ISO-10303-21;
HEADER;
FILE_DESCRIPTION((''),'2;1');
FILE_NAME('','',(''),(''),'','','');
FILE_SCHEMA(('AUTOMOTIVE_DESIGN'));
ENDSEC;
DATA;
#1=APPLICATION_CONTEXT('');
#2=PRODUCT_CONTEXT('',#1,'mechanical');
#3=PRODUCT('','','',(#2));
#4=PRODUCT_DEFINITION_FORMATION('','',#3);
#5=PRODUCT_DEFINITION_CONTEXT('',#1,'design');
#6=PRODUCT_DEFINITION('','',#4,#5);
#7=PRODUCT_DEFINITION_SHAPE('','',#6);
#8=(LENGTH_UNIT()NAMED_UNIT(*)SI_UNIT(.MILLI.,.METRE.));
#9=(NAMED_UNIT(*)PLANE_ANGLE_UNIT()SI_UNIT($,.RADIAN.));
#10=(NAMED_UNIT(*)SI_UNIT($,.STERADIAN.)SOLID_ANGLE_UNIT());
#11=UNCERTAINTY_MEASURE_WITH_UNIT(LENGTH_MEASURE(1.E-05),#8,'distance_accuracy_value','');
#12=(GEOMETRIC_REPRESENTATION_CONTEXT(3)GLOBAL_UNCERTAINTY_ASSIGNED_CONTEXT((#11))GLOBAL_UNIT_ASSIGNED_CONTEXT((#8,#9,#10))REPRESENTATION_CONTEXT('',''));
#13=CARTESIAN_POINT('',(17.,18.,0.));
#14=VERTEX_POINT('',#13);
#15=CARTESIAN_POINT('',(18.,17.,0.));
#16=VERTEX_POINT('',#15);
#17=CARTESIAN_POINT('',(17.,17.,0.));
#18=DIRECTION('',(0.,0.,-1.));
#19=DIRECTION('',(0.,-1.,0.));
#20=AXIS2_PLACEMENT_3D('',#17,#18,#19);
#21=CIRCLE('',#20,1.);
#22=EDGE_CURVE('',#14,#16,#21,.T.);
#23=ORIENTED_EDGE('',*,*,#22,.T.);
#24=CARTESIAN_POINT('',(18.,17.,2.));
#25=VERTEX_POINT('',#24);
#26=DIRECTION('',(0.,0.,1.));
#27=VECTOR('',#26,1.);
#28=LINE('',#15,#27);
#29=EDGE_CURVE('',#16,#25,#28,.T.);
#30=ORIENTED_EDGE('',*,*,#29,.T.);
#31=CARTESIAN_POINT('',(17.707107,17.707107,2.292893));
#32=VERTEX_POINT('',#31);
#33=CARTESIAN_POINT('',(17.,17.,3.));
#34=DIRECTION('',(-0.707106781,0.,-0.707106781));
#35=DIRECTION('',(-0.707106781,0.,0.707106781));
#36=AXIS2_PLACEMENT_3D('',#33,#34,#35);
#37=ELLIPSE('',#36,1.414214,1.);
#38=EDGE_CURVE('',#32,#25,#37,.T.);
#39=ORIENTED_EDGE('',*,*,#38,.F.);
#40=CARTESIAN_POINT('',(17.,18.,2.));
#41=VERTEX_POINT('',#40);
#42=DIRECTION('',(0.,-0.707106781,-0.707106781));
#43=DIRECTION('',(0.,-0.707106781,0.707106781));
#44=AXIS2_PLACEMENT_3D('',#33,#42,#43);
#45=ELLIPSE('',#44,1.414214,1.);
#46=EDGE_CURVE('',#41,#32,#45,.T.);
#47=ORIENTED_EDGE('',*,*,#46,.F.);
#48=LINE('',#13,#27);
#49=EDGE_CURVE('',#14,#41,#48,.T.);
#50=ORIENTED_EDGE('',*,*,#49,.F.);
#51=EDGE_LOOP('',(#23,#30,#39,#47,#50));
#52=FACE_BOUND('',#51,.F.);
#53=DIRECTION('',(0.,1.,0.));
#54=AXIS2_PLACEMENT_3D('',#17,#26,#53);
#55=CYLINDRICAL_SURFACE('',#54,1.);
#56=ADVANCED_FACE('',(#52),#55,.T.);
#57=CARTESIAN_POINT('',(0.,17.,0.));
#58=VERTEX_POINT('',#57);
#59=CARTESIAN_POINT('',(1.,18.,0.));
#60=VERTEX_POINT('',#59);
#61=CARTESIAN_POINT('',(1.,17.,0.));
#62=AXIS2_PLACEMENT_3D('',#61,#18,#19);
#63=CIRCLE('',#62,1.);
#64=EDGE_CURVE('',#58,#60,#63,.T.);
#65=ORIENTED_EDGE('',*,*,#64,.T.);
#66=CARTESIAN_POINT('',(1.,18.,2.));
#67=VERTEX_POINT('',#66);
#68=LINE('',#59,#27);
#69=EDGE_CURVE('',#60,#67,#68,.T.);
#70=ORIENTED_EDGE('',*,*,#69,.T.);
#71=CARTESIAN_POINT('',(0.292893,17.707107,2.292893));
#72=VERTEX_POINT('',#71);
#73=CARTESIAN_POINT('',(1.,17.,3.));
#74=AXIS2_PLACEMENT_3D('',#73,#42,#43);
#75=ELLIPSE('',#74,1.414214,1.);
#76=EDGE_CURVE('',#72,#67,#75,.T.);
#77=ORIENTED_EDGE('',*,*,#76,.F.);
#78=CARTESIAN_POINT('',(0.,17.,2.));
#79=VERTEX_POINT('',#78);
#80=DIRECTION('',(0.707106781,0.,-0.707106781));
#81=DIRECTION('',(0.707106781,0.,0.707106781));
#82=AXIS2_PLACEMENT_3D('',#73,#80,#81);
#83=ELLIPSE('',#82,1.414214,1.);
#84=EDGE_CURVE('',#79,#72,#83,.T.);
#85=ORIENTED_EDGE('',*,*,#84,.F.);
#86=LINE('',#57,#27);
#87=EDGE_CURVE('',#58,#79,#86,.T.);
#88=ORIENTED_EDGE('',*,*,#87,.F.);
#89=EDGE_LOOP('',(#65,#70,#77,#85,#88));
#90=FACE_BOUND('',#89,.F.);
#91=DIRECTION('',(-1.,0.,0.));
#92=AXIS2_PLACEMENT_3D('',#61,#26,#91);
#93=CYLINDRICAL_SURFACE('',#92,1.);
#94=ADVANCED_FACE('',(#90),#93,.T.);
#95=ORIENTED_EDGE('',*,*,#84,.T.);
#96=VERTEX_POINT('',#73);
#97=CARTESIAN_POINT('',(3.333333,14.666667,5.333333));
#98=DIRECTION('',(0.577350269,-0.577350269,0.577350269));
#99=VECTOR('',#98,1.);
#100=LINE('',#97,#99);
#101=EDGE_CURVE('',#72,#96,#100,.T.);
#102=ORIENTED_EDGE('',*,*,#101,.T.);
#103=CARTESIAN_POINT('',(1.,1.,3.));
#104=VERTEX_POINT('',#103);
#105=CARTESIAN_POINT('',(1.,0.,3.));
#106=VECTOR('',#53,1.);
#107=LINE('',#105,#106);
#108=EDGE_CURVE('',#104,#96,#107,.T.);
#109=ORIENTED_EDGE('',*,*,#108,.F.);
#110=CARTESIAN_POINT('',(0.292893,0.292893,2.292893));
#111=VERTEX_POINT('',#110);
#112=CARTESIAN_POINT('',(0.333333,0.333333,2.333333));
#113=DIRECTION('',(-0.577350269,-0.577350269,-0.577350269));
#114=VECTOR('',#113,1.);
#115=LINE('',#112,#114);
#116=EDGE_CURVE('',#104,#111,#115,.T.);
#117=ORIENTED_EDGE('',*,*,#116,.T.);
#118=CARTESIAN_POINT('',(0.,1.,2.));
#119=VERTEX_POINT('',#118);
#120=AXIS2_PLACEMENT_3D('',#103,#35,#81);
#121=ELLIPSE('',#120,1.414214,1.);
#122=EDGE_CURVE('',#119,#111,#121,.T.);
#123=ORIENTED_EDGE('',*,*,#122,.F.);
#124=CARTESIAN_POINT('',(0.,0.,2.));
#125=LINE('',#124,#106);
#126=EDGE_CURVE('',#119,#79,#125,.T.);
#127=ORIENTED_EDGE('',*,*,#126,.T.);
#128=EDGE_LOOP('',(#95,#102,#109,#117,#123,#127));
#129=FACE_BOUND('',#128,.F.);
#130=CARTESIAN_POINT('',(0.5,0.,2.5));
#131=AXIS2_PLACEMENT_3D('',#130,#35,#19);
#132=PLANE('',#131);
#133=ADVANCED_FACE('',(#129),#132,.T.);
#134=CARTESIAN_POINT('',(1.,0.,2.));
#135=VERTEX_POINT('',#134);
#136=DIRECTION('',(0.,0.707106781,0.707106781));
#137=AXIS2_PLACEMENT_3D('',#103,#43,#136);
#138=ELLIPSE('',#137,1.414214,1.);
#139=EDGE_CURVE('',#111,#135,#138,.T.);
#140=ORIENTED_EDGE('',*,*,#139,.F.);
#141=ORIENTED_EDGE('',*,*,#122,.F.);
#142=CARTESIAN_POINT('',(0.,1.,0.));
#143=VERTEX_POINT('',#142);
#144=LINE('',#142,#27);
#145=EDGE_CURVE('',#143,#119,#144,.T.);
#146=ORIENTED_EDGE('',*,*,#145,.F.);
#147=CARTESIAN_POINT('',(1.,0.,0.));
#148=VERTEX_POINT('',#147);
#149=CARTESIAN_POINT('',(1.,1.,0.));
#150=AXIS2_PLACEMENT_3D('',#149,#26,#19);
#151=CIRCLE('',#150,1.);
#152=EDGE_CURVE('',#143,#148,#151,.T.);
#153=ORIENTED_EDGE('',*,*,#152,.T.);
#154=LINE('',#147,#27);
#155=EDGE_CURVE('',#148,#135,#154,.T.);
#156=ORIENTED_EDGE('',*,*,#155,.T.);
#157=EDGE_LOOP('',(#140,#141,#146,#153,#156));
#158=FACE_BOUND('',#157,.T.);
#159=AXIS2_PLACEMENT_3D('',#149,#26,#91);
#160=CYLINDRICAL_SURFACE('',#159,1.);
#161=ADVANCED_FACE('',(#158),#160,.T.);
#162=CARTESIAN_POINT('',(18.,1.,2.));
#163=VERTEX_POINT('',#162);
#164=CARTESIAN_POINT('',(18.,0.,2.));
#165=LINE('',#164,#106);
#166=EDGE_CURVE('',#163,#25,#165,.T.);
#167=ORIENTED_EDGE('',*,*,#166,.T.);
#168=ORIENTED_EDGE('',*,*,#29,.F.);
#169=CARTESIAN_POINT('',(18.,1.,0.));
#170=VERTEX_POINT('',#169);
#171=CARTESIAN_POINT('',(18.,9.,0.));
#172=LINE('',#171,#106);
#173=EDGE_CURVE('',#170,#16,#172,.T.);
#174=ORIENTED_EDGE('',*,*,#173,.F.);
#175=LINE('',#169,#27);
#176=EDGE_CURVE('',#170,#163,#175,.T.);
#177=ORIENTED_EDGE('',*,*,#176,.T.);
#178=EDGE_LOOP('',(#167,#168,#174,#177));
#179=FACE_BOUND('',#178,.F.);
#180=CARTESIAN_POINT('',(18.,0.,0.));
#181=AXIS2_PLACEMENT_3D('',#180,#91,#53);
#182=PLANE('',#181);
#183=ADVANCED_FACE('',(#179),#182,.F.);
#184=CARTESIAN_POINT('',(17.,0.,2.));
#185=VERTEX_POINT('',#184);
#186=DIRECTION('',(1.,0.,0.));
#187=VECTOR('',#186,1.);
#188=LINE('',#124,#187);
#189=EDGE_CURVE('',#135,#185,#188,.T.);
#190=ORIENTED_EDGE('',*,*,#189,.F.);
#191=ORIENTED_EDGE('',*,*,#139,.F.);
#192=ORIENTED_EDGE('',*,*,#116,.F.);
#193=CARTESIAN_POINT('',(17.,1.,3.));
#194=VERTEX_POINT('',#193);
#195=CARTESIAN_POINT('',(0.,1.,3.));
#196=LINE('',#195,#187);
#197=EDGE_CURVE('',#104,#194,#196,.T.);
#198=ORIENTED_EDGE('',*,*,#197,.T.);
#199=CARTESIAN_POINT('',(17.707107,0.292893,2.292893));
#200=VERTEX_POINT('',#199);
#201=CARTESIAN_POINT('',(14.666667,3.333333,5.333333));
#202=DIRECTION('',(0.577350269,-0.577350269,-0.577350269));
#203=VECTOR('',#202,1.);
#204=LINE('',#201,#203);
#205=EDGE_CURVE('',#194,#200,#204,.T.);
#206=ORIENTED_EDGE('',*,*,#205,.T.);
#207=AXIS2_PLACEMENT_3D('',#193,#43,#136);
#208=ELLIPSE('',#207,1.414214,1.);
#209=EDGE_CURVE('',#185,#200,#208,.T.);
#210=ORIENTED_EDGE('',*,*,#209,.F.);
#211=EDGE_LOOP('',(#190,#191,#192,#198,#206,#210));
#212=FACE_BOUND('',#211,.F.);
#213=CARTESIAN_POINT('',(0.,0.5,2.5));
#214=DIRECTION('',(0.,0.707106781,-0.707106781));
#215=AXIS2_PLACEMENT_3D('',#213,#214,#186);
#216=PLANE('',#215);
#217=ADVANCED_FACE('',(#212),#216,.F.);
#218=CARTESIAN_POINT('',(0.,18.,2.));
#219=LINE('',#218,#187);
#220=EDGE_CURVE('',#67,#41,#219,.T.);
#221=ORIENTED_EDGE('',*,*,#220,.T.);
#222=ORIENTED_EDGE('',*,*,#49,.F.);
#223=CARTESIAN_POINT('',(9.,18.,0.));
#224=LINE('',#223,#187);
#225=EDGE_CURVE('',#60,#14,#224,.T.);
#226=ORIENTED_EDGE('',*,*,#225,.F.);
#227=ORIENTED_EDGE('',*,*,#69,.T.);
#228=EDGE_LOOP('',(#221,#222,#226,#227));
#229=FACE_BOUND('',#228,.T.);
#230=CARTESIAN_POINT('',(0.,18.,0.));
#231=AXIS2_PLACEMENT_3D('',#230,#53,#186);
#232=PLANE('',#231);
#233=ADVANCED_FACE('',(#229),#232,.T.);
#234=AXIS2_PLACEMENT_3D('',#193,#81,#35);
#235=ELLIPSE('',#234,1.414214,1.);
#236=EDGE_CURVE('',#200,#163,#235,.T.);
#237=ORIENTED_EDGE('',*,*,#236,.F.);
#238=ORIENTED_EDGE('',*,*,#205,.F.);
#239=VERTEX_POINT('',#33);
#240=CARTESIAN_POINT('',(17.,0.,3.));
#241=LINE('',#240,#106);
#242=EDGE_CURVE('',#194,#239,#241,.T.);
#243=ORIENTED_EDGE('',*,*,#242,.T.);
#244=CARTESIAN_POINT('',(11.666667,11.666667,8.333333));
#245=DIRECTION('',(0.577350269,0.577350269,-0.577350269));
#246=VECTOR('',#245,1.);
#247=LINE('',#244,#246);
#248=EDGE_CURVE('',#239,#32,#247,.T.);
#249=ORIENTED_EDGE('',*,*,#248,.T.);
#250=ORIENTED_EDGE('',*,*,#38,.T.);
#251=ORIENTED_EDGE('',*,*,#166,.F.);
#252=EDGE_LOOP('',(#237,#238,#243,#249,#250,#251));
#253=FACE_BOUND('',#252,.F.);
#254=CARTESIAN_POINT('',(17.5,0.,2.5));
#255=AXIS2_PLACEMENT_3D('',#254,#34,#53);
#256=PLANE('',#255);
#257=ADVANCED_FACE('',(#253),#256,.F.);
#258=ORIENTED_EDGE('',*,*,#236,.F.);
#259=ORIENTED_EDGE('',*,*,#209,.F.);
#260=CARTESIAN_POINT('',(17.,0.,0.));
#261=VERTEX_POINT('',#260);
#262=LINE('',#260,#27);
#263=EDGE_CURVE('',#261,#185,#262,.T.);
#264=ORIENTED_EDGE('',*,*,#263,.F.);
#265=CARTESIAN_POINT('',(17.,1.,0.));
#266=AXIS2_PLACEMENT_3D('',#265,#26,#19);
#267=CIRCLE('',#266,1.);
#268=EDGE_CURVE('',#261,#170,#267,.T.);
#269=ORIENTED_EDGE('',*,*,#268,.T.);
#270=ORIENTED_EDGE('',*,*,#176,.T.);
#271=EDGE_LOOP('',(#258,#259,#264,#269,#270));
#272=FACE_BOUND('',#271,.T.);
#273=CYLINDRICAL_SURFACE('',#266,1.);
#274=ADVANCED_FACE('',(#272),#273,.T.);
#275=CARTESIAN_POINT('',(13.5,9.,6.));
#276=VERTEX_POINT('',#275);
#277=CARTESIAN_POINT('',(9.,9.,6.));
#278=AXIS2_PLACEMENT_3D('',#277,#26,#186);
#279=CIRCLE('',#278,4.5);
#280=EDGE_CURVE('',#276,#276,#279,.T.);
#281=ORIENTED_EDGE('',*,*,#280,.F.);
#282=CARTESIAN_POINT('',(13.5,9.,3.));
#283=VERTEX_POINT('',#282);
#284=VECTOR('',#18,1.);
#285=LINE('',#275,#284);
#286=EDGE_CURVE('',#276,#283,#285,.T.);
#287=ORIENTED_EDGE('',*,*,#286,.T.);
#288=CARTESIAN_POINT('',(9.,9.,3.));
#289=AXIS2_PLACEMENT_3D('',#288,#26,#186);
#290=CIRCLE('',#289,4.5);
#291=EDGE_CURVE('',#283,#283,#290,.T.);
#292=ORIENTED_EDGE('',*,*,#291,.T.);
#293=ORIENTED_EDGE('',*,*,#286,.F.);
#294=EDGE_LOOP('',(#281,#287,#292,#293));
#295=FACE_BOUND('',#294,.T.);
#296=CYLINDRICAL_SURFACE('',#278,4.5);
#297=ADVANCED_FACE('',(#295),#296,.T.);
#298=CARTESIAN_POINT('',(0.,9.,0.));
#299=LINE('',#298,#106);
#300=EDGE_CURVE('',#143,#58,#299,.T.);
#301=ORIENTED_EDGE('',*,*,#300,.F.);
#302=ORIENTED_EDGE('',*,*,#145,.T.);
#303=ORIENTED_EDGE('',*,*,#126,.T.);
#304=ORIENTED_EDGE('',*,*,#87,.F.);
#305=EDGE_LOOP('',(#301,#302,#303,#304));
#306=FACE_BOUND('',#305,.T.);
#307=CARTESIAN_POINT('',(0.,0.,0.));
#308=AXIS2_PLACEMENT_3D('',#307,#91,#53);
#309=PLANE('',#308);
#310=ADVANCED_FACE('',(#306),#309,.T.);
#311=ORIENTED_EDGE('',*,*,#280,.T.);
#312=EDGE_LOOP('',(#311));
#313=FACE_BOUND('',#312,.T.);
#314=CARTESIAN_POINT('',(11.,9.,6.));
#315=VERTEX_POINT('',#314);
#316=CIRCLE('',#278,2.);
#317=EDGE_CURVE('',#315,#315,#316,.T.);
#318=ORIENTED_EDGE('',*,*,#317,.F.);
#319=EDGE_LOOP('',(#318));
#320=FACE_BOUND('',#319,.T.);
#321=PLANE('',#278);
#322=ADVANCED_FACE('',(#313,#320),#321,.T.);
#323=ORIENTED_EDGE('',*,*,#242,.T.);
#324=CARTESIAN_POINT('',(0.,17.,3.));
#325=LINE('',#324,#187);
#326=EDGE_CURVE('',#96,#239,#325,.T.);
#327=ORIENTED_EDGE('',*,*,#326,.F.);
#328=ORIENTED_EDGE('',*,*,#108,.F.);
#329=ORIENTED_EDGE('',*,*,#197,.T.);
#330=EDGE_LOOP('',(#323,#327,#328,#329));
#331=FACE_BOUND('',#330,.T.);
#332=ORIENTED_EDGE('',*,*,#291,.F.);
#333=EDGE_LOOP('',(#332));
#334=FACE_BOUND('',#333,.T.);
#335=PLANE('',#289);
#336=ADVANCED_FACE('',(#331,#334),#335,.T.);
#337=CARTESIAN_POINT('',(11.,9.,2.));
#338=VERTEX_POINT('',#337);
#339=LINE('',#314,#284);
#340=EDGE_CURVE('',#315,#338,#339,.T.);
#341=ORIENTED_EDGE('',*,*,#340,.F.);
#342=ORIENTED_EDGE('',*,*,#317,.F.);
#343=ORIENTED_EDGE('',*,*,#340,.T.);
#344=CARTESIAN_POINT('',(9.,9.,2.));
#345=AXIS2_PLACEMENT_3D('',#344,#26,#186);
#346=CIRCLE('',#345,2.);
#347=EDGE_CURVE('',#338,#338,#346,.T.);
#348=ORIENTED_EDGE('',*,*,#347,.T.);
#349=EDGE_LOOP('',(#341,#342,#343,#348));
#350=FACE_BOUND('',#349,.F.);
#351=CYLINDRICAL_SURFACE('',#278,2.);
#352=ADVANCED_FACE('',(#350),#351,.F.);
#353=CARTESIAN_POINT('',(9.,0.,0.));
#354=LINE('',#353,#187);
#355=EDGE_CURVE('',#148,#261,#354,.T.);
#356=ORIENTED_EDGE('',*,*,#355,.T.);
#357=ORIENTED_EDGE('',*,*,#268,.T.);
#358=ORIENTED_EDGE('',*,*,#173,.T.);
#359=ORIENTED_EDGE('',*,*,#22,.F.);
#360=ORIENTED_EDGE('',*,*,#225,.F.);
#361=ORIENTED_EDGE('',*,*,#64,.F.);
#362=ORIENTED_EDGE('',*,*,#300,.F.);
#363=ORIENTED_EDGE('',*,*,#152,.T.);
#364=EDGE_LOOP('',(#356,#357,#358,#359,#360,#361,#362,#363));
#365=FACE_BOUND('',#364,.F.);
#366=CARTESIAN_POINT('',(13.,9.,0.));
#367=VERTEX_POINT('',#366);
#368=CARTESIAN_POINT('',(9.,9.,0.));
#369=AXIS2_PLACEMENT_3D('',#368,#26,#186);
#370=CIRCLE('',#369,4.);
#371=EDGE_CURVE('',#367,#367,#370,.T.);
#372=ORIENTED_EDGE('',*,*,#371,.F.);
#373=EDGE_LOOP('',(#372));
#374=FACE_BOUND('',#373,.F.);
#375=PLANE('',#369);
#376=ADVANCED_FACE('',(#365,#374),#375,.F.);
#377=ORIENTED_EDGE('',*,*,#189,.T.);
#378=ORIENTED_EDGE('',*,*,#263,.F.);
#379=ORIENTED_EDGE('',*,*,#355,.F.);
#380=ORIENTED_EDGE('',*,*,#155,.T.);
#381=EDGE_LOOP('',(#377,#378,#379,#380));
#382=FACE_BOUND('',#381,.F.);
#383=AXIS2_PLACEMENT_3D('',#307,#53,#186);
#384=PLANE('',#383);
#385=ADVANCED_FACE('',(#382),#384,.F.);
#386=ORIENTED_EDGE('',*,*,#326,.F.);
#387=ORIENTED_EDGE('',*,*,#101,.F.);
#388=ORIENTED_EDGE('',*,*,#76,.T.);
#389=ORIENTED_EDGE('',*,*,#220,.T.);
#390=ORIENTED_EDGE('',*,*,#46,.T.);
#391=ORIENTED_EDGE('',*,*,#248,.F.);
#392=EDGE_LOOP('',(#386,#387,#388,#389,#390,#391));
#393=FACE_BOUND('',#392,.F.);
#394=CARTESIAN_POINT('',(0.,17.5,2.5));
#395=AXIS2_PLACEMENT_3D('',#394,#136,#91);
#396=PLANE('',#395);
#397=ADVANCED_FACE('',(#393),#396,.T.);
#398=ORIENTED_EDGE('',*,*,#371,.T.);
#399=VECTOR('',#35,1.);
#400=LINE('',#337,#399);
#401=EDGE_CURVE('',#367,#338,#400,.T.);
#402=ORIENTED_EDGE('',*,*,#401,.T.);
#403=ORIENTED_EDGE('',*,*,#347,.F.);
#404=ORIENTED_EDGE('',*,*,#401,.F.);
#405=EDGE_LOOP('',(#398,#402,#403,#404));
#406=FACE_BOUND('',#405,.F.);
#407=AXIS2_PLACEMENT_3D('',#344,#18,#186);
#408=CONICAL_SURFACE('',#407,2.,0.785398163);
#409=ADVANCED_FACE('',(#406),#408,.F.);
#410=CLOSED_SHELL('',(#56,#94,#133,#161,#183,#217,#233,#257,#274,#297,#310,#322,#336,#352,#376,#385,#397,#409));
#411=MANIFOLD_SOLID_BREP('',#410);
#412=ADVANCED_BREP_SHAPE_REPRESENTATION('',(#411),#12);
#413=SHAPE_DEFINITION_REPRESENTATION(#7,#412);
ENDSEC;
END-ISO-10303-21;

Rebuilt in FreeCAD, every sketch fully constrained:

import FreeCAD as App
import Part
import Sketcher
from FreeCAD import Vector
Q = App.Units.Quantity


def edges_at(feature, points):
    """Names of the edges that pass closest to the given points."""
    edges = feature.Shape.Edges
    near = lambda p: min(range(len(edges)), key=lambda i: edges[i].distToShape(Part.Vertex(*p))[0])
    return sorted({f"Edge{near(p) + 1}" for p in points})


def add_polygon(sketch, points):
    """Adds a closed chain of lines whose ends are joined by coincident constraints."""
    first, n = sketch.GeometryCount, len(points)
    for a, b in zip(points, points[1:] + points[:1]):
        sketch.addGeometry(Part.LineSegment(App.Vector(*a, 0), App.Vector(*b, 0)), False)
    for i in range(n):
        sketch.addConstraint(Sketcher.Constraint("Coincident", first + i, 2, first + (i + 1) % n, 1))

doc = App.newDocument("Part")
body = doc.addObject("PartDesign::Body", "Body")

# Sketch on XY plane
sketch1 = doc.addObject("Sketcher::SketchObject", "Sketch")
body.addObject(sketch1)
sketch1.AttachmentSupport = (doc.XY_Plane, [""])
sketch1.MapMode = "FlatFace"
add_polygon(sketch1, [(0, 18), (0, 0), (18, 0), (18, 18)])  # lines 0-3
sketch1.addConstraint(Sketcher.Constraint("Vertical", 0))
sketch1.addConstraint(Sketcher.Constraint("Horizontal", 1))
sketch1.addConstraint(Sketcher.Constraint("Vertical", 2))
sketch1.addConstraint(Sketcher.Constraint("Horizontal", 3))
sketch1.addConstraint(Sketcher.Constraint("Coincident", 0, 2, -1, 1))
sketch1.addConstraint(Sketcher.Constraint("Equal", 3, 0))
sketch1.addConstraint(Sketcher.Constraint("DistanceX", 1, 1, 1, 2, Q("18 mm")))
pad1 = doc.addObject("PartDesign::Pad", "Pad")
body.addObject(pad1)
pad1.Profile = sketch1
pad1.Length = 6

# Sketch on XY plane
sketch2 = doc.addObject("Sketcher::SketchObject", "Sketch001")
body.addObject(sketch2)
sketch2.AttachmentSupport = (doc.XY_Plane, [""])
sketch2.MapMode = "FlatFace"
sketch2.AttachmentOffset = App.Placement(Vector(0, 0, 6), App.Rotation())
add_polygon(sketch2, [(0, 18), (0, 0), (18, 0), (18, 18)])  # lines 0-3
sketch2.addGeometry(Part.Circle(Vector(9, 9, 0), Vector(0, 0, 1), 4.5), False)  # 4
sketch2.addConstraint(Sketcher.Constraint("Vertical", 0))
sketch2.addConstraint(Sketcher.Constraint("Horizontal", 1))
sketch2.addConstraint(Sketcher.Constraint("Vertical", 2))
sketch2.addConstraint(Sketcher.Constraint("Horizontal", 3))
sketch2.addConstraint(Sketcher.Constraint("Coincident", 0, 2, -1, 1))
sketch2.addConstraint(Sketcher.Constraint("Equal", 3, 0))
sketch2.addConstraint(Sketcher.Constraint("Diameter", 4, Q("9 mm")))
sketch2.addConstraint(Sketcher.Constraint("DistanceX", 1, 1, 1, 2, Q("18 mm")))
sketch2.addConstraint(Sketcher.Constraint("DistanceX", -1, 1, 4, 3, Q("9 mm")))
sketch2.addConstraint(Sketcher.Constraint("DistanceY", -1, 1, 4, 3, Q("9 mm")))
pocket1 = doc.addObject("PartDesign::Pocket", "Pocket")
body.addObject(pocket1)
pocket1.Profile = sketch2
pocket1.Length = 3

# Sketch on XY plane
sketch3 = doc.addObject("Sketcher::SketchObject", "Sketch002")
body.addObject(sketch3)
sketch3.AttachmentSupport = (doc.XY_Plane, [""])
sketch3.MapMode = "FlatFace"
sketch3.AttachmentOffset = App.Placement(Vector(0, 0, 6), App.Rotation())
sketch3.addGeometry(Part.Circle(Vector(9, 9, 0), Vector(0, 0, 1), 2), False)
sketch3.addConstraint(Sketcher.Constraint("Diameter", 0, Q("4 mm")))
sketch3.addConstraint(Sketcher.Constraint("DistanceX", -1, 1, 0, 3, Q("9 mm")))
sketch3.addConstraint(Sketcher.Constraint("DistanceY", -1, 1, 0, 3, Q("9 mm")))
pocket2 = doc.addObject("PartDesign::Pocket", "Pocket001")
body.addObject(pocket2)
pocket2.Profile = sketch3
pocket2.Type = "ThroughAll"
doc.recompute()

chamfer = doc.addObject("PartDesign::Chamfer", "Chamfer")
body.addObject(chamfer)
chamfer.Base = (pocket2, edges_at(pocket2, [
    (9, 0, 3),
    (18, 9, 3),
    (9, 18, 3),
    (0, 9, 3),
]))
chamfer.Size = 1
doc.recompute()

fillet = doc.addObject("PartDesign::Fillet", "Fillet")
body.addObject(fillet)
fillet.Base = (chamfer, edges_at(chamfer, [
    (0, 18, 1),
    (0, 0, 1),
    (18, 18, 1),
    (18, 0, 1),
]))
fillet.Radius = 1
doc.recompute()

chamfer2 = doc.addObject("PartDesign::Chamfer", "Chamfer001")
body.addObject(chamfer2)
chamfer2.Base = (fillet, edges_at(fillet, [(7, 9, 0)]))
chamfer2.Size = 2

doc.recompute()
